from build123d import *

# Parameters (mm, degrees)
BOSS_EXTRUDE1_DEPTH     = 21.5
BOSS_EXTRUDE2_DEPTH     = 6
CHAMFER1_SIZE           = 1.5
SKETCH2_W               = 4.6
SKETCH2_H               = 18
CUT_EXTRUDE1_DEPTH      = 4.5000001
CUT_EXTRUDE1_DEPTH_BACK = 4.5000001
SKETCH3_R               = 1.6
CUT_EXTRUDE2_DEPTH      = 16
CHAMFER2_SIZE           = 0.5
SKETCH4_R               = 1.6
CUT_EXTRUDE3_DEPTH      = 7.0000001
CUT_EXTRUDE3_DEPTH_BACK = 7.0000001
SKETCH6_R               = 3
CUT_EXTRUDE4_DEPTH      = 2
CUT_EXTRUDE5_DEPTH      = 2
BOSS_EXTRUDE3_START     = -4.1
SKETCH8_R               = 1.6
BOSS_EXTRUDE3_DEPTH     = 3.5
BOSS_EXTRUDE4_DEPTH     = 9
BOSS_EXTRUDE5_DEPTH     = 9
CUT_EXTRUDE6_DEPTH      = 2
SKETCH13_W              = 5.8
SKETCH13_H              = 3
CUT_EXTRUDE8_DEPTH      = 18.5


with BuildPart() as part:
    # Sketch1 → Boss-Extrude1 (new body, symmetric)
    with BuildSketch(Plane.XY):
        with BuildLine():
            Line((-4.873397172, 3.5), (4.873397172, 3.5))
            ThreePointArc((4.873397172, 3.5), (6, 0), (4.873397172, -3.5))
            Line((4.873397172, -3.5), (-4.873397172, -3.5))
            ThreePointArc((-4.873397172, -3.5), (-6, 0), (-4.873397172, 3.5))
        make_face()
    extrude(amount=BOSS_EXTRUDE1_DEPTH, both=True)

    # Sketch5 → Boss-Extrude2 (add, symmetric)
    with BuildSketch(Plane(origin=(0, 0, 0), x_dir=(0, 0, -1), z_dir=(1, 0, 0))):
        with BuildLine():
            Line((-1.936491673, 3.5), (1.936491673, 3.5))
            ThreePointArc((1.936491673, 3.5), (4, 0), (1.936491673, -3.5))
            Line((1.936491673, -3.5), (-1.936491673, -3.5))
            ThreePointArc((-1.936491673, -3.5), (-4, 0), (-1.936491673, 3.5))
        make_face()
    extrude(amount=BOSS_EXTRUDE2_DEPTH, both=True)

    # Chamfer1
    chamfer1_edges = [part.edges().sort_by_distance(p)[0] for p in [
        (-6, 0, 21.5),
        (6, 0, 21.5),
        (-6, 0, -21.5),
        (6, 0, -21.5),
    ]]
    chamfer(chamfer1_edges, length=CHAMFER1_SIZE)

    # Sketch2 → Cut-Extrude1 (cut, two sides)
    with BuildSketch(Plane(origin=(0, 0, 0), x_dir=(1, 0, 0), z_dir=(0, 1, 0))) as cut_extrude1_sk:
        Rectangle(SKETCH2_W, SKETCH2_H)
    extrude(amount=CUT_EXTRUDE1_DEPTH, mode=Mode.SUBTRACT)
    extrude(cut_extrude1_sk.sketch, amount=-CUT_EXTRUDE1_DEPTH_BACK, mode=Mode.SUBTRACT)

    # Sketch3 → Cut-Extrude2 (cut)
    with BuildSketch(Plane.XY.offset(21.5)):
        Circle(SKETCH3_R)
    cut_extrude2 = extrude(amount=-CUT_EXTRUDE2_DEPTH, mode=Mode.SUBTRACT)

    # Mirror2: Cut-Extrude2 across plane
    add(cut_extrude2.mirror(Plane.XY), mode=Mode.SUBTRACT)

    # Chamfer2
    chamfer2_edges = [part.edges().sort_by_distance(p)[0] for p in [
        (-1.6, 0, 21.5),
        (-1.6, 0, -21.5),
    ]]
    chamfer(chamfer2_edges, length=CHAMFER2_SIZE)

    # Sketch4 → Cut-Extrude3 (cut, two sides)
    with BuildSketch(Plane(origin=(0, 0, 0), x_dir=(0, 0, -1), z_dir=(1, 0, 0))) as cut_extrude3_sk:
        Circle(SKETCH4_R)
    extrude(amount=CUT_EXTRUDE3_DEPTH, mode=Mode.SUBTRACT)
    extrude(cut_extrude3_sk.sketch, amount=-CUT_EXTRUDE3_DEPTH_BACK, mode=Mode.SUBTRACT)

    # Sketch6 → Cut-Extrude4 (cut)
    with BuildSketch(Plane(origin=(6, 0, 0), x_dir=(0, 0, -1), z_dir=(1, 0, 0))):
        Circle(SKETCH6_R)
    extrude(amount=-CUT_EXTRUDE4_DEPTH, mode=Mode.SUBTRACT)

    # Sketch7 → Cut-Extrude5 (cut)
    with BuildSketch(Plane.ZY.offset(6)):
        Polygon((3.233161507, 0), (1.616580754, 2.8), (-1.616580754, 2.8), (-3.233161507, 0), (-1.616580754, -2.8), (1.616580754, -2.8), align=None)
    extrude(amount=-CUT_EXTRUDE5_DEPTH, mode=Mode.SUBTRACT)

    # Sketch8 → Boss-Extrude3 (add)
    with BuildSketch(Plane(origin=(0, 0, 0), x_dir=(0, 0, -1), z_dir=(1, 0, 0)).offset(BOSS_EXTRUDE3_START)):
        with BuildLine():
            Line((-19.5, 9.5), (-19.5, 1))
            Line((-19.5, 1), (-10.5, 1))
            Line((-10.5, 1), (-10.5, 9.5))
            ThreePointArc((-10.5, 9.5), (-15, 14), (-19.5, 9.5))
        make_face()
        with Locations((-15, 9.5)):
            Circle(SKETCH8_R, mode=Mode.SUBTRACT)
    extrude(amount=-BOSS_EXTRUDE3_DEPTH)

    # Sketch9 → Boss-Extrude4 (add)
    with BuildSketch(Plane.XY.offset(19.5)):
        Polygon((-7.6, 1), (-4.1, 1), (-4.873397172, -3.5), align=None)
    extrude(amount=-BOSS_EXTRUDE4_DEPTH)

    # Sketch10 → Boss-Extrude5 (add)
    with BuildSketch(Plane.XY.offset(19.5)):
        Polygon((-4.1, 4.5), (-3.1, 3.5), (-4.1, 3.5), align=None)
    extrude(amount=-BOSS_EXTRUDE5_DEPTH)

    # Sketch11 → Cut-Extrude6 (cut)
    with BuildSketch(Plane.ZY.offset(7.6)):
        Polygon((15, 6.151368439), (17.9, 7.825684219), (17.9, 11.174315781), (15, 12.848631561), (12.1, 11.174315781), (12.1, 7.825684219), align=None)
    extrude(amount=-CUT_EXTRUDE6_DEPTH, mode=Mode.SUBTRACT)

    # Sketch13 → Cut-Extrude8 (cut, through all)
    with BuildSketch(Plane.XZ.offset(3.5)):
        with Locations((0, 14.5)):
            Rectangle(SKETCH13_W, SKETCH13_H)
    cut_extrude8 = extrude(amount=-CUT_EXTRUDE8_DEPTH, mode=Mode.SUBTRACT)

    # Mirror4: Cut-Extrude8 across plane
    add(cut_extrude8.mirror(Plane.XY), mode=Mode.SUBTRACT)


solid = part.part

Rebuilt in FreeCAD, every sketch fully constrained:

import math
import FreeCAD as App
import Part
import Sketcher
from FreeCAD import Vector
Q = App.Units.Quantity


def edges_at(feature, points):
    """Names of the edges that pass closest to the given points."""
    edges = feature.Shape.Edges
    near = lambda p: min(range(len(edges)), key=lambda i: edges[i].distToShape(Part.Vertex(*p))[0])
    return sorted({f"Edge{near(p) + 1}" for p in points})

doc = App.newDocument("Part")
body = doc.addObject("PartDesign::Body", "Body")

sketch1 = body.newObject("Sketcher::SketchObject", "Sketch")
sketch1.AttachmentSupport = (doc.getObject("XY_Plane"), [""])
sketch1.MapMode = "FlatFace"
sketch1.addGeometry(Part.LineSegment(Vector(5, 4, 0), Vector(-5, 4, 0)), False)
sketch1.addGeometry(Part.ArcOfCircle(Part.Circle(Vector(0, 0, 0), Vector(0, 0, 1), 6), math.radians(144), math.radians(216)), False)
sketch1.addGeometry(Part.LineSegment(Vector(-5, -4, 0), Vector(5, -4, 0)), False)
sketch1.addGeometry(Part.ArcOfCircle(Part.Circle(Vector(0, 0, 0), Vector(0, 0, 1), 6), math.radians(-36), math.radians(36)), False)
sketch1.addConstraint(Sketcher.Constraint("Coincident", 0, 2, 1, 1))
sketch1.addConstraint(Sketcher.Constraint("Coincident", 1, 2, 2, 1))
sketch1.addConstraint(Sketcher.Constraint("Coincident", 2, 2, 3, 1))
sketch1.addConstraint(Sketcher.Constraint("Coincident", 3, 2, 0, 1))
sketch1.addConstraint(Sketcher.Constraint("Horizontal", 0))
sketch1.addConstraint(Sketcher.Constraint("Horizontal", 2))
sketch1.addConstraint(Sketcher.Constraint("Coincident", 1, 3, -1, 1))
sketch1.addConstraint(Sketcher.Constraint("Coincident", 3, 3, -1, 1))
sketch1.addConstraint(Sketcher.Constraint("Equal", 1, 3))
sketch1.addConstraint(Sketcher.Constraint("Vertical", 0, 2, 1, 2))
sketch1.addConstraint(Sketcher.Constraint("Radius", 1, Q("6 mm")))
sketch1.addConstraint(Sketcher.Constraint("DistanceY", 1, 2, 0, 2, Q("7 mm")))
pad1 = body.newObject("PartDesign::Pad", "Pad")
pad1.Profile = sketch1
pad1.Length = 43
pad1.Midplane = True

sketch2 = body.newObject("Sketcher::SketchObject", "Sketch001")
sketch2.AttachmentSupport = (doc.getObject("YZ_Plane"), [""])
sketch2.MapMode = "FlatFace"
sketch2.addGeometry(Part.LineSegment(Vector(3.5, -1.9, 0), Vector(3.5, 1.9, 0)), False)
sketch2.addGeometry(Part.ArcOfCircle(Part.Circle(Vector(0, 0, 0), Vector(0, 0, 1), 4), math.radians(29), math.radians(151)), False)
sketch2.addGeometry(Part.LineSegment(Vector(-3.5, 1.9, 0), Vector(-3.5, -1.9, 0)), False)
sketch2.addGeometry(Part.ArcOfCircle(Part.Circle(Vector(0, 0, 0), Vector(0, 0, 1), 4), math.radians(-151), math.radians(-29)), False)
sketch2.addConstraint(Sketcher.Constraint("Coincident", 0, 2, 1, 1))
sketch2.addConstraint(Sketcher.Constraint("Coincident", 1, 2, 2, 1))
sketch2.addConstraint(Sketcher.Constraint("Coincident", 2, 2, 3, 1))
sketch2.addConstraint(Sketcher.Constraint("Coincident", 3, 2, 0, 1))
sketch2.addConstraint(Sketcher.Constraint("Vertical", 0))
sketch2.addConstraint(Sketcher.Constraint("Vertical", 2))
sketch2.addConstraint(Sketcher.Constraint("Coincident", 1, 3, -1, 1))
sketch2.addConstraint(Sketcher.Constraint("Coincident", 3, 3, -1, 1))
sketch2.addConstraint(Sketcher.Constraint("Equal", 1, 3))
sketch2.addConstraint(Sketcher.Constraint("Horizontal", 0, 2, 1, 2))
sketch2.addConstraint(Sketcher.Constraint("Radius", 1, Q("4 mm")))
sketch2.addConstraint(Sketcher.Constraint("DistanceX", 1, 2, 0, 2, Q("7 mm")))
pad2 = body.newObject("PartDesign::Pad", "Pad001")
pad2.Profile = sketch2
pad2.Length = 12
pad2.Midplane = True
doc.recompute()

chamfer = body.newObject("PartDesign::Chamfer", "Chamfer")
chamfer.Base = (pad2, edges_at(pad2, [
    (-6, 0, 21.5),
    (6, 0, 21.5),
    (-6, 0, -21.5),
    (6, 0, -21.5),
]))
chamfer.Size = 1.5

sketch3 = body.newObject("Sketcher::SketchObject", "Sketch002")
sketch3.AttachmentSupport = (doc.getObject("XZ_Plane"), [""])
sketch3.MapMode = "FlatFace"
sketch3.addGeometry(Part.LineSegment(Vector(-2.3, -9, 0), Vector(-2.3, 9, 0)), False)
sketch3.addGeometry(Part.LineSegment(Vector(-2.3, 9, 0), Vector(2.3, 9, 0)), False)
sketch3.addGeometry(Part.LineSegment(Vector(2.3, 9, 0), Vector(2.3, -9, 0)), False)
sketch3.addGeometry(Part.LineSegment(Vector(2.3, -9, 0), Vector(-2.3, -9, 0)), False)
sketch3.addConstraint(Sketcher.Constraint("Coincident", 0, 2, 1, 1))
sketch3.addConstraint(Sketcher.Constraint("Coincident", 1, 2, 2, 1))
sketch3.addConstraint(Sketcher.Constraint("Coincident", 2, 2, 3, 1))
sketch3.addConstraint(Sketcher.Constraint("Coincident", 3, 2, 0, 1))
sketch3.addConstraint(Sketcher.Constraint("Vertical", 0))
sketch3.addConstraint(Sketcher.Constraint("Horizontal", 1))
sketch3.addConstraint(Sketcher.Constraint("Vertical", 2))
sketch3.addConstraint(Sketcher.Constraint("Horizontal", 3))
sketch3.addConstraint(Sketcher.Constraint("Symmetric", 0, 2, 2, 2, -1, 1))
sketch3.addConstraint(Sketcher.Constraint("DistanceY", 0, 1, 0, 2, Q("18 mm")))
sketch3.addConstraint(Sketcher.Constraint("DistanceX", 1, 1, 1, 2, Q("4.6 mm")))
pocket1 = body.newObject("PartDesign::Pocket", "Pocket")
pocket1.Profile = sketch3
pocket1.Type = "ThroughAll"
pocket1.Midplane = True

sketch4 = body.newObject("Sketcher::SketchObject", "Sketch003")
sketch4.AttachmentSupport = (doc.getObject("XY_Plane"), [""])
sketch4.MapMode = "FlatFace"
sketch4.AttachmentOffset = App.Placement(Vector(0, 0, 21.5), App.Rotation())
sketch4.addGeometry(Part.Circle(Vector(0, 0, 0), Vector(0, 0, 1), 1.6), False)
sketch4.addConstraint(Sketcher.Constraint("Coincident", 0, 3, -1, 1))
sketch4.addConstraint(Sketcher.Constraint("Diameter", 0, Q("3.2 mm")))
pocket2 = body.newObject("PartDesign::Pocket", "Pocket001")
pocket2.Profile = sketch4
pocket2.Length = 16
doc.recompute()

mirrored = body.newObject("PartDesign::Mirrored", "Mirrored")
mirrored.Originals = [pocket2]
mirrored.MirrorPlane = (doc.getObject("XY_Plane"), [""])
body.Tip = mirrored
doc.recompute()

chamfer2 = body.newObject("PartDesign::Chamfer", "Chamfer001")
chamfer2.Base = (mirrored, edges_at(mirrored, [(-1.6, 0, 21.5), (-1.6, 0, -21.5)]))
chamfer2.Size = 0.5

sketch5 = body.newObject("Sketcher::SketchObject", "Sketch004")
sketch5.AttachmentSupport = (doc.getObject("YZ_Plane"), [""])
sketch5.MapMode = "FlatFace"
sketch5.addGeometry(Part.Circle(Vector(0, 0, 0), Vector(0, 0, 1), 1.6), False)
sketch5.addConstraint(Sketcher.Constraint("Coincident", 0, 3, -1, 1))
sketch5.addConstraint(Sketcher.Constraint("Diameter", 0, Q("3.2 mm")))
pocket3 = body.newObject("PartDesign::Pocket", "Pocket002")
pocket3.Profile = sketch5
pocket3.Type = "ThroughAll"
pocket3.Midplane = True

sketch6 = body.newObject("Sketcher::SketchObject", "Sketch005")
sketch6.AttachmentSupport = (doc.getObject("YZ_Plane"), [""])
sketch6.MapMode = "FlatFace"
sketch6.AttachmentOffset = App.Placement(Vector(0, 0, 6), App.Rotation())
sketch6.addGeometry(Part.Circle(Vector(0, 0, 0), Vector(0, 0, 1), 3), False)
sketch6.addConstraint(Sketcher.Constraint("Coincident", 0, 3, -1, 1))
sketch6.addConstraint(Sketcher.Constraint("Diameter", 0, Q("6 mm")))
pocket4 = body.newObject("PartDesign::Pocket", "Pocket003")
pocket4.Profile = sketch6
pocket4.Length = 2

sketch7 = body.newObject("Sketcher::SketchObject", "Sketch006")
sketch7.AttachmentSupport = (doc.getObject("YZ_Plane"), [""])
sketch7.MapMode = "FlatFace"
sketch7.AttachmentOffset = App.Placement(Vector(0, 0, -6), App.Rotation())
sketch7.addGeometry(Part.LineSegment(Vector(0, 3.2, 0), Vector(2.8, 1.6, 0)), False)
sketch7.addGeometry(Part.LineSegment(Vector(2.8, 1.6, 0), Vector(2.8, -1.6, 0)), False)
sketch7.addGeometry(Part.LineSegment(Vector(2.8, -1.6, 0), Vector(0, -3.2, 0)), False)
sketch7.addGeometry(Part.LineSegment(Vector(0, -3.2, 0), Vector(-2.8, -1.6, 0)), False)
sketch7.addGeometry(Part.LineSegment(Vector(-2.8, -1.6, 0), Vector(-2.8, 1.6, 0)), False)
sketch7.addGeometry(Part.LineSegment(Vector(-2.8, 1.6, 0), Vector(0, 3.2, 0)), False)
sketch7.addConstraint(Sketcher.Constraint("Coincident", 0, 2, 1, 1))
sketch7.addConstraint(Sketcher.Constraint("Coincident", 1, 2, 2, 1))
sketch7.addConstraint(Sketcher.Constraint("Coincident", 2, 2, 3, 1))
sketch7.addConstraint(Sketcher.Constraint("Coincident", 3, 2, 4, 1))
sketch7.addConstraint(Sketcher.Constraint("Coincident", 4, 2, 5, 1))
sketch7.addConstraint(Sketcher.Constraint("Coincident", 5, 2, 0, 1))
sketch7.addConstraint(Sketcher.Constraint("Vertical", 1))
sketch7.addConstraint(Sketcher.Constraint("Vertical", 4))
sketch7.addConstraint(Sketcher.Constraint("Symmetric", 0, 2, 3, 2, -1, 1))
sketch7.addConstraint(Sketcher.Constraint("Symmetric", 2, 2, 5, 2, -1, 1))
sketch7.addConstraint(Sketcher.Constraint("PointOnObject", 2, 2, -2))
sketch7.addConstraint(Sketcher.Constraint("Parallel", 2, 5))
sketch7.addConstraint(Sketcher.Constraint("Horizontal", 1, 2, 3, 2))
sketch7.addConstraint(Sketcher.Constraint("Angle", 0, Q("-30 deg")))
sketch7.addConstraint(Sketcher.Constraint("DistanceX", -1, 1, 0, 2, Q("2.8 mm")))
sketch7.addConstraint(Sketcher.Constraint("DistanceY", 1, 2, 1, 1, Q("3.233162 mm")))
pocket5 = body.newObject("PartDesign::Pocket", "Pocket004")
pocket5.Profile = sketch7
pocket5.Length = 2
pocket5.Reversed = True

sketch8 = body.newObject("Sketcher::SketchObject", "Sketch007")
sketch8.AttachmentSupport = (doc.getObject("YZ_Plane"), [""])
sketch8.MapMode = "FlatFace"
sketch8.AttachmentOffset = App.Placement(Vector(0, 0, -4.1), App.Rotation())
sketch8.addGeometry(Part.LineSegment(Vector(9.5, 19.5, 0), Vector(1, 19.5, 0)), False)
sketch8.addGeometry(Part.LineSegment(Vector(1, 19.5, 0), Vector(1, 10.5, 0)), False)
sketch8.addGeometry(Part.LineSegment(Vector(1, 10.5, 0), Vector(9.5, 10.5, 0)), False)
sketch8.addGeometry(Part.ArcOfCircle(Part.Circle(Vector(9.5, 15, 0), Vector(0, 0, 1), 4.5), math.radians(-90), math.radians(90)), False)
sketch8.addGeometry(Part.Circle(Vector(9.5, 15, 0), Vector(0, 0, 1), 1.6), False)
sketch8.addConstraint(Sketcher.Constraint("Coincident", 0, 2, 1, 1))
sketch8.addConstraint(Sketcher.Constraint("Coincident", 1, 2, 2, 1))
sketch8.addConstraint(Sketcher.Constraint("Tangent", 2, 2, 3, 1))
sketch8.addConstraint(Sketcher.Constraint("Tangent", 3, 2, 0, 1))
sketch8.addConstraint(Sketcher.Constraint("Horizontal", 0))
sketch8.addConstraint(Sketcher.Constraint("Vertical", 1))
sketch8.addConstraint(Sketcher.Constraint("Horizontal", 2))
sketch8.addConstraint(Sketcher.Constraint("Coincident", 4, 3, 3, 3))
sketch8.addConstraint(Sketcher.Constraint("Diameter", 4, Q("3.2 mm")))
sketch8.addConstraint(Sketcher.Constraint("Radius", 3, Q("4.5 mm")))
sketch8.addConstraint(Sketcher.Constraint("DistanceX", 0, 2, 0, 1, Q("8.5 mm")))
sketch8.addConstraint(Sketcher.Constraint("DistanceY", -1, 1, 3, 3, Q("15 mm")))
sketch8.addConstraint(Sketcher.Constraint("DistanceX", -1, 1, 0, 2, Q("1 mm")))
pad3 = body.newObject("PartDesign::Pad", "Pad002")
pad3.Profile = sketch8
pad3.Length = 3.5
pad3.Reversed = True

sketch9 = body.newObject("Sketcher::SketchObject", "Sketch008")
sketch9.AttachmentSupport = (doc.getObject("XY_Plane"), [""])
sketch9.MapMode = "FlatFace"
sketch9.AttachmentOffset = App.Placement(Vector(0, 0, 19.5), App.Rotation())
sketch9.addGeometry(Part.LineSegment(Vector(-4.1, 1, 0), Vector(-7.6, 1, 0)), False)
sketch9.addGeometry(Part.LineSegment(Vector(-7.6, 1, 0), Vector(-4.9, -3.5, 0)), False)
sketch9.addGeometry(Part.LineSegment(Vector(-4.9, -3.5, 0), Vector(-4.1, 1, 0)), False)
sketch9.addConstraint(Sketcher.Constraint("Coincident", 0, 2, 1, 1))
sketch9.addConstraint(Sketcher.Constraint("Coincident", 1, 2, 2, 1))
sketch9.addConstraint(Sketcher.Constraint("Coincident", 2, 2, 0, 1))
sketch9.addConstraint(Sketcher.Constraint("Horizontal", 0))
sketch9.addConstraint(Sketcher.Constraint("DistanceX", 0, 2, 0, 1, Q("3.5 mm")))
sketch9.addConstraint(Sketcher.Constraint("DistanceY", -1, 1, 0, 2, Q("1 mm")))
sketch9.addConstraint(Sketcher.Constraint("DistanceX", 0, 2, -1, 1, Q("7.6 mm")))
sketch9.addConstraint(Sketcher.Constraint("DistanceY", 1, 2, -1, 1, Q("3.5 mm")))
sketch9.addConstraint(Sketcher.Constraint("Distance", 1, Q("5.261593 mm")))
pad4 = body.newObject("PartDesign::Pad", "Pad003")
pad4.Profile = sketch9
pad4.Length = 9
pad4.Reversed = True

sketch10 = body.newObject("Sketcher::SketchObject", "Sketch009")
sketch10.AttachmentSupport = (doc.getObject("XY_Plane"), [""])
sketch10.MapMode = "FlatFace"
sketch10.AttachmentOffset = App.Placement(Vector(0, 0, 19.5), App.Rotation())
sketch10.addGeometry(Part.LineSegment(Vector(-3.1, 3.5, 0), Vector(-4.1, 4.5, 0)), False)
sketch10.addGeometry(Part.LineSegment(Vector(-4.1, 4.5, 0), Vector(-4.1, 3.5, 0)), False)
sketch10.addGeometry(Part.LineSegment(Vector(-4.1, 3.5, 0), Vector(-3.1, 3.5, 0)), False)
sketch10.addConstraint(Sketcher.Constraint("Coincident", 0, 2, 1, 1))
sketch10.addConstraint(Sketcher.Constraint("Coincident", 1, 2, 2, 1))
sketch10.addConstraint(Sketcher.Constraint("Coincident", 2, 2, 0, 1))
sketch10.addConstraint(Sketcher.Constraint("Vertical", 1))
sketch10.addConstraint(Sketcher.Constraint("Horizontal", 2))
sketch10.addConstraint(Sketcher.Constraint("Equal", 2, 1))
sketch10.addConstraint(Sketcher.Constraint("DistanceX", 2, 1, 2, 2, Q("1 mm")))
sketch10.addConstraint(Sketcher.Constraint("DistanceX", 0, 2, -1, 1, Q("4.1 mm")))
sketch10.addConstraint(Sketcher.Constraint("DistanceY", -1, 1, 0, 2, Q("4.5 mm")))
pad5 = body.newObject("PartDesign::Pad", "Pad004")
pad5.Profile = sketch10
pad5.Length = 9
pad5.Reversed = True

sketch11 = body.newObject("Sketcher::SketchObject", "Sketch010")
sketch11.AttachmentSupport = (doc.getObject("YZ_Plane"), [""])
sketch11.MapMode = "FlatFace"
sketch11.AttachmentOffset = App.Placement(Vector(0, 0, -7.6), App.Rotation())
sketch11.addGeometry(Part.LineSegment(Vector(6.2, 15, 0), Vector(7.8, 17.9, 0)), False)
sketch11.addGeometry(Part.LineSegment(Vector(7.8, 17.9, 0), Vector(11.2, 17.9, 0)), False)
sketch11.addGeometry(Part.LineSegment(Vector(11.2, 17.9, 0), Vector(12.8, 15, 0)), False)
sketch11.addGeometry(Part.LineSegment(Vector(12.8, 15, 0), Vector(11.2, 12.1, 0)), False)
sketch11.addGeometry(Part.LineSegment(Vector(11.2, 12.1, 0), Vector(7.8, 12.1, 0)), False)
sketch11.addGeometry(Part.LineSegment(Vector(7.8, 12.1, 0), Vector(6.2, 15, 0)), False)
sketch11.addConstraint(Sketcher.Constraint("Coincident", 0, 2, 1, 1))
sketch11.addConstraint(Sketcher.Constraint("Coincident", 1, 2, 2, 1))
sketch11.addConstraint(Sketcher.Constraint("Coincident", 2, 2, 3, 1))
sketch11.addConstraint(Sketcher.Constraint("Coincident", 3, 2, 4, 1))
sketch11.addConstraint(Sketcher.Constraint("Coincident", 4, 2, 5, 1))
sketch11.addConstraint(Sketcher.Constraint("Coincident", 5, 2, 0, 1))
sketch11.addConstraint(Sketcher.Constraint("Horizontal", 1))
sketch11.addConstraint(Sketcher.Constraint("Horizontal", 4))
sketch11.addConstraint(Sketcher.Constraint("Parallel", 0, 3))
sketch11.addConstraint(Sketcher.Constraint("Parallel", 2, 5))
sketch11.addConstraint(Sketcher.Constraint("Horizontal", 2, 2, 5, 2))
sketch11.addConstraint(Sketcher.Constraint("Vertical", 1, 2, 3, 2))
sketch11.addConstraint(Sketcher.Constraint("Vertical", 0, 2, 4, 2))
sketch11.addConstraint(Sketcher.Constraint("Angle", 0, Q("60 deg")))
sketch11.addConstraint(Sketcher.Constraint("DistanceY", -1, 1, 2, 2, Q("15 mm")))
sketch11.addConstraint(Sketcher.Constraint("DistanceY", -1, 1, 0, 2, Q("17.9 mm")))
sketch11.addConstraint(Sketcher.Constraint("DistanceX", 1, 1, 1, 2, Q("3.348632 mm")))
sketch11.addConstraint(Sketcher.Constraint("DistanceX", -1, 1, 2, 2, Q("12.848632 mm")))
pocket6 = body.newObject("PartDesign::Pocket", "Pocket005")
pocket6.Profile = sketch11
pocket6.Length = 2
pocket6.Reversed = True

sketch12 = body.newObject("Sketcher::SketchObject", "Sketch011")
sketch12.AttachmentSupport = (doc.getObject("XZ_Plane"), [""])
sketch12.MapMode = "FlatFace"
sketch12.AttachmentOffset = App.Placement(Vector(0, 0, 3.5), App.Rotation())
sketch12.addGeometry(Part.LineSegment(Vector(-2.9, 16, 0), Vector(-2.9, 13, 0)), False)
sketch12.addGeometry(Part.LineSegment(Vector(-2.9, 13, 0), Vector(2.9, 13, 0)), False)
sketch12.addGeometry(Part.LineSegment(Vector(2.9, 13, 0), Vector(2.9, 16, 0)), False)
sketch12.addGeometry(Part.LineSegment(Vector(2.9, 16, 0), Vector(-2.9, 16, 0)), False)
sketch12.addConstraint(Sketcher.Constraint("Coincident", 0, 2, 1, 1))
sketch12.addConstraint(Sketcher.Constraint("Coincident", 1, 2, 2, 1))
sketch12.addConstraint(Sketcher.Constraint("Coincident", 2, 2, 3, 1))
sketch12.addConstraint(Sketcher.Constraint("Coincident", 3, 2, 0, 1))
sketch12.addConstraint(Sketcher.Constraint("Vertical", 0))
sketch12.addConstraint(Sketcher.Constraint("Horizontal", 1))
sketch12.addConstraint(Sketcher.Constraint("Vertical", 2))
sketch12.addConstraint(Sketcher.Constraint("Horizontal", 3))
sketch12.addConstraint(Sketcher.Constraint("DistanceY", 0, 2, 0, 1, Q("3 mm")))
sketch12.addConstraint(Sketcher.Constraint("DistanceX", 1, 1, 1, 2, Q("5.8 mm")))
sketch12.addConstraint(Sketcher.Constraint("DistanceY", -1, 1, 0, 2, Q("13 mm")))
sketch12.addConstraint(Sketcher.Constraint("DistanceX", 0, 2, -1, 1, Q("2.9 mm")))
pocket7 = body.newObject("PartDesign::Pocket", "Pocket006")
pocket7.Profile = sketch12
pocket7.Type = "ThroughAll"
doc.recompute()

mirrored2 = body.newObject("PartDesign::Mirrored", "Mirrored001")
mirrored2.Originals = [pocket7]
mirrored2.MirrorPlane = (doc.getObject("XY_Plane"), [""])
body.Tip = mirrored2

doc.recompute()
